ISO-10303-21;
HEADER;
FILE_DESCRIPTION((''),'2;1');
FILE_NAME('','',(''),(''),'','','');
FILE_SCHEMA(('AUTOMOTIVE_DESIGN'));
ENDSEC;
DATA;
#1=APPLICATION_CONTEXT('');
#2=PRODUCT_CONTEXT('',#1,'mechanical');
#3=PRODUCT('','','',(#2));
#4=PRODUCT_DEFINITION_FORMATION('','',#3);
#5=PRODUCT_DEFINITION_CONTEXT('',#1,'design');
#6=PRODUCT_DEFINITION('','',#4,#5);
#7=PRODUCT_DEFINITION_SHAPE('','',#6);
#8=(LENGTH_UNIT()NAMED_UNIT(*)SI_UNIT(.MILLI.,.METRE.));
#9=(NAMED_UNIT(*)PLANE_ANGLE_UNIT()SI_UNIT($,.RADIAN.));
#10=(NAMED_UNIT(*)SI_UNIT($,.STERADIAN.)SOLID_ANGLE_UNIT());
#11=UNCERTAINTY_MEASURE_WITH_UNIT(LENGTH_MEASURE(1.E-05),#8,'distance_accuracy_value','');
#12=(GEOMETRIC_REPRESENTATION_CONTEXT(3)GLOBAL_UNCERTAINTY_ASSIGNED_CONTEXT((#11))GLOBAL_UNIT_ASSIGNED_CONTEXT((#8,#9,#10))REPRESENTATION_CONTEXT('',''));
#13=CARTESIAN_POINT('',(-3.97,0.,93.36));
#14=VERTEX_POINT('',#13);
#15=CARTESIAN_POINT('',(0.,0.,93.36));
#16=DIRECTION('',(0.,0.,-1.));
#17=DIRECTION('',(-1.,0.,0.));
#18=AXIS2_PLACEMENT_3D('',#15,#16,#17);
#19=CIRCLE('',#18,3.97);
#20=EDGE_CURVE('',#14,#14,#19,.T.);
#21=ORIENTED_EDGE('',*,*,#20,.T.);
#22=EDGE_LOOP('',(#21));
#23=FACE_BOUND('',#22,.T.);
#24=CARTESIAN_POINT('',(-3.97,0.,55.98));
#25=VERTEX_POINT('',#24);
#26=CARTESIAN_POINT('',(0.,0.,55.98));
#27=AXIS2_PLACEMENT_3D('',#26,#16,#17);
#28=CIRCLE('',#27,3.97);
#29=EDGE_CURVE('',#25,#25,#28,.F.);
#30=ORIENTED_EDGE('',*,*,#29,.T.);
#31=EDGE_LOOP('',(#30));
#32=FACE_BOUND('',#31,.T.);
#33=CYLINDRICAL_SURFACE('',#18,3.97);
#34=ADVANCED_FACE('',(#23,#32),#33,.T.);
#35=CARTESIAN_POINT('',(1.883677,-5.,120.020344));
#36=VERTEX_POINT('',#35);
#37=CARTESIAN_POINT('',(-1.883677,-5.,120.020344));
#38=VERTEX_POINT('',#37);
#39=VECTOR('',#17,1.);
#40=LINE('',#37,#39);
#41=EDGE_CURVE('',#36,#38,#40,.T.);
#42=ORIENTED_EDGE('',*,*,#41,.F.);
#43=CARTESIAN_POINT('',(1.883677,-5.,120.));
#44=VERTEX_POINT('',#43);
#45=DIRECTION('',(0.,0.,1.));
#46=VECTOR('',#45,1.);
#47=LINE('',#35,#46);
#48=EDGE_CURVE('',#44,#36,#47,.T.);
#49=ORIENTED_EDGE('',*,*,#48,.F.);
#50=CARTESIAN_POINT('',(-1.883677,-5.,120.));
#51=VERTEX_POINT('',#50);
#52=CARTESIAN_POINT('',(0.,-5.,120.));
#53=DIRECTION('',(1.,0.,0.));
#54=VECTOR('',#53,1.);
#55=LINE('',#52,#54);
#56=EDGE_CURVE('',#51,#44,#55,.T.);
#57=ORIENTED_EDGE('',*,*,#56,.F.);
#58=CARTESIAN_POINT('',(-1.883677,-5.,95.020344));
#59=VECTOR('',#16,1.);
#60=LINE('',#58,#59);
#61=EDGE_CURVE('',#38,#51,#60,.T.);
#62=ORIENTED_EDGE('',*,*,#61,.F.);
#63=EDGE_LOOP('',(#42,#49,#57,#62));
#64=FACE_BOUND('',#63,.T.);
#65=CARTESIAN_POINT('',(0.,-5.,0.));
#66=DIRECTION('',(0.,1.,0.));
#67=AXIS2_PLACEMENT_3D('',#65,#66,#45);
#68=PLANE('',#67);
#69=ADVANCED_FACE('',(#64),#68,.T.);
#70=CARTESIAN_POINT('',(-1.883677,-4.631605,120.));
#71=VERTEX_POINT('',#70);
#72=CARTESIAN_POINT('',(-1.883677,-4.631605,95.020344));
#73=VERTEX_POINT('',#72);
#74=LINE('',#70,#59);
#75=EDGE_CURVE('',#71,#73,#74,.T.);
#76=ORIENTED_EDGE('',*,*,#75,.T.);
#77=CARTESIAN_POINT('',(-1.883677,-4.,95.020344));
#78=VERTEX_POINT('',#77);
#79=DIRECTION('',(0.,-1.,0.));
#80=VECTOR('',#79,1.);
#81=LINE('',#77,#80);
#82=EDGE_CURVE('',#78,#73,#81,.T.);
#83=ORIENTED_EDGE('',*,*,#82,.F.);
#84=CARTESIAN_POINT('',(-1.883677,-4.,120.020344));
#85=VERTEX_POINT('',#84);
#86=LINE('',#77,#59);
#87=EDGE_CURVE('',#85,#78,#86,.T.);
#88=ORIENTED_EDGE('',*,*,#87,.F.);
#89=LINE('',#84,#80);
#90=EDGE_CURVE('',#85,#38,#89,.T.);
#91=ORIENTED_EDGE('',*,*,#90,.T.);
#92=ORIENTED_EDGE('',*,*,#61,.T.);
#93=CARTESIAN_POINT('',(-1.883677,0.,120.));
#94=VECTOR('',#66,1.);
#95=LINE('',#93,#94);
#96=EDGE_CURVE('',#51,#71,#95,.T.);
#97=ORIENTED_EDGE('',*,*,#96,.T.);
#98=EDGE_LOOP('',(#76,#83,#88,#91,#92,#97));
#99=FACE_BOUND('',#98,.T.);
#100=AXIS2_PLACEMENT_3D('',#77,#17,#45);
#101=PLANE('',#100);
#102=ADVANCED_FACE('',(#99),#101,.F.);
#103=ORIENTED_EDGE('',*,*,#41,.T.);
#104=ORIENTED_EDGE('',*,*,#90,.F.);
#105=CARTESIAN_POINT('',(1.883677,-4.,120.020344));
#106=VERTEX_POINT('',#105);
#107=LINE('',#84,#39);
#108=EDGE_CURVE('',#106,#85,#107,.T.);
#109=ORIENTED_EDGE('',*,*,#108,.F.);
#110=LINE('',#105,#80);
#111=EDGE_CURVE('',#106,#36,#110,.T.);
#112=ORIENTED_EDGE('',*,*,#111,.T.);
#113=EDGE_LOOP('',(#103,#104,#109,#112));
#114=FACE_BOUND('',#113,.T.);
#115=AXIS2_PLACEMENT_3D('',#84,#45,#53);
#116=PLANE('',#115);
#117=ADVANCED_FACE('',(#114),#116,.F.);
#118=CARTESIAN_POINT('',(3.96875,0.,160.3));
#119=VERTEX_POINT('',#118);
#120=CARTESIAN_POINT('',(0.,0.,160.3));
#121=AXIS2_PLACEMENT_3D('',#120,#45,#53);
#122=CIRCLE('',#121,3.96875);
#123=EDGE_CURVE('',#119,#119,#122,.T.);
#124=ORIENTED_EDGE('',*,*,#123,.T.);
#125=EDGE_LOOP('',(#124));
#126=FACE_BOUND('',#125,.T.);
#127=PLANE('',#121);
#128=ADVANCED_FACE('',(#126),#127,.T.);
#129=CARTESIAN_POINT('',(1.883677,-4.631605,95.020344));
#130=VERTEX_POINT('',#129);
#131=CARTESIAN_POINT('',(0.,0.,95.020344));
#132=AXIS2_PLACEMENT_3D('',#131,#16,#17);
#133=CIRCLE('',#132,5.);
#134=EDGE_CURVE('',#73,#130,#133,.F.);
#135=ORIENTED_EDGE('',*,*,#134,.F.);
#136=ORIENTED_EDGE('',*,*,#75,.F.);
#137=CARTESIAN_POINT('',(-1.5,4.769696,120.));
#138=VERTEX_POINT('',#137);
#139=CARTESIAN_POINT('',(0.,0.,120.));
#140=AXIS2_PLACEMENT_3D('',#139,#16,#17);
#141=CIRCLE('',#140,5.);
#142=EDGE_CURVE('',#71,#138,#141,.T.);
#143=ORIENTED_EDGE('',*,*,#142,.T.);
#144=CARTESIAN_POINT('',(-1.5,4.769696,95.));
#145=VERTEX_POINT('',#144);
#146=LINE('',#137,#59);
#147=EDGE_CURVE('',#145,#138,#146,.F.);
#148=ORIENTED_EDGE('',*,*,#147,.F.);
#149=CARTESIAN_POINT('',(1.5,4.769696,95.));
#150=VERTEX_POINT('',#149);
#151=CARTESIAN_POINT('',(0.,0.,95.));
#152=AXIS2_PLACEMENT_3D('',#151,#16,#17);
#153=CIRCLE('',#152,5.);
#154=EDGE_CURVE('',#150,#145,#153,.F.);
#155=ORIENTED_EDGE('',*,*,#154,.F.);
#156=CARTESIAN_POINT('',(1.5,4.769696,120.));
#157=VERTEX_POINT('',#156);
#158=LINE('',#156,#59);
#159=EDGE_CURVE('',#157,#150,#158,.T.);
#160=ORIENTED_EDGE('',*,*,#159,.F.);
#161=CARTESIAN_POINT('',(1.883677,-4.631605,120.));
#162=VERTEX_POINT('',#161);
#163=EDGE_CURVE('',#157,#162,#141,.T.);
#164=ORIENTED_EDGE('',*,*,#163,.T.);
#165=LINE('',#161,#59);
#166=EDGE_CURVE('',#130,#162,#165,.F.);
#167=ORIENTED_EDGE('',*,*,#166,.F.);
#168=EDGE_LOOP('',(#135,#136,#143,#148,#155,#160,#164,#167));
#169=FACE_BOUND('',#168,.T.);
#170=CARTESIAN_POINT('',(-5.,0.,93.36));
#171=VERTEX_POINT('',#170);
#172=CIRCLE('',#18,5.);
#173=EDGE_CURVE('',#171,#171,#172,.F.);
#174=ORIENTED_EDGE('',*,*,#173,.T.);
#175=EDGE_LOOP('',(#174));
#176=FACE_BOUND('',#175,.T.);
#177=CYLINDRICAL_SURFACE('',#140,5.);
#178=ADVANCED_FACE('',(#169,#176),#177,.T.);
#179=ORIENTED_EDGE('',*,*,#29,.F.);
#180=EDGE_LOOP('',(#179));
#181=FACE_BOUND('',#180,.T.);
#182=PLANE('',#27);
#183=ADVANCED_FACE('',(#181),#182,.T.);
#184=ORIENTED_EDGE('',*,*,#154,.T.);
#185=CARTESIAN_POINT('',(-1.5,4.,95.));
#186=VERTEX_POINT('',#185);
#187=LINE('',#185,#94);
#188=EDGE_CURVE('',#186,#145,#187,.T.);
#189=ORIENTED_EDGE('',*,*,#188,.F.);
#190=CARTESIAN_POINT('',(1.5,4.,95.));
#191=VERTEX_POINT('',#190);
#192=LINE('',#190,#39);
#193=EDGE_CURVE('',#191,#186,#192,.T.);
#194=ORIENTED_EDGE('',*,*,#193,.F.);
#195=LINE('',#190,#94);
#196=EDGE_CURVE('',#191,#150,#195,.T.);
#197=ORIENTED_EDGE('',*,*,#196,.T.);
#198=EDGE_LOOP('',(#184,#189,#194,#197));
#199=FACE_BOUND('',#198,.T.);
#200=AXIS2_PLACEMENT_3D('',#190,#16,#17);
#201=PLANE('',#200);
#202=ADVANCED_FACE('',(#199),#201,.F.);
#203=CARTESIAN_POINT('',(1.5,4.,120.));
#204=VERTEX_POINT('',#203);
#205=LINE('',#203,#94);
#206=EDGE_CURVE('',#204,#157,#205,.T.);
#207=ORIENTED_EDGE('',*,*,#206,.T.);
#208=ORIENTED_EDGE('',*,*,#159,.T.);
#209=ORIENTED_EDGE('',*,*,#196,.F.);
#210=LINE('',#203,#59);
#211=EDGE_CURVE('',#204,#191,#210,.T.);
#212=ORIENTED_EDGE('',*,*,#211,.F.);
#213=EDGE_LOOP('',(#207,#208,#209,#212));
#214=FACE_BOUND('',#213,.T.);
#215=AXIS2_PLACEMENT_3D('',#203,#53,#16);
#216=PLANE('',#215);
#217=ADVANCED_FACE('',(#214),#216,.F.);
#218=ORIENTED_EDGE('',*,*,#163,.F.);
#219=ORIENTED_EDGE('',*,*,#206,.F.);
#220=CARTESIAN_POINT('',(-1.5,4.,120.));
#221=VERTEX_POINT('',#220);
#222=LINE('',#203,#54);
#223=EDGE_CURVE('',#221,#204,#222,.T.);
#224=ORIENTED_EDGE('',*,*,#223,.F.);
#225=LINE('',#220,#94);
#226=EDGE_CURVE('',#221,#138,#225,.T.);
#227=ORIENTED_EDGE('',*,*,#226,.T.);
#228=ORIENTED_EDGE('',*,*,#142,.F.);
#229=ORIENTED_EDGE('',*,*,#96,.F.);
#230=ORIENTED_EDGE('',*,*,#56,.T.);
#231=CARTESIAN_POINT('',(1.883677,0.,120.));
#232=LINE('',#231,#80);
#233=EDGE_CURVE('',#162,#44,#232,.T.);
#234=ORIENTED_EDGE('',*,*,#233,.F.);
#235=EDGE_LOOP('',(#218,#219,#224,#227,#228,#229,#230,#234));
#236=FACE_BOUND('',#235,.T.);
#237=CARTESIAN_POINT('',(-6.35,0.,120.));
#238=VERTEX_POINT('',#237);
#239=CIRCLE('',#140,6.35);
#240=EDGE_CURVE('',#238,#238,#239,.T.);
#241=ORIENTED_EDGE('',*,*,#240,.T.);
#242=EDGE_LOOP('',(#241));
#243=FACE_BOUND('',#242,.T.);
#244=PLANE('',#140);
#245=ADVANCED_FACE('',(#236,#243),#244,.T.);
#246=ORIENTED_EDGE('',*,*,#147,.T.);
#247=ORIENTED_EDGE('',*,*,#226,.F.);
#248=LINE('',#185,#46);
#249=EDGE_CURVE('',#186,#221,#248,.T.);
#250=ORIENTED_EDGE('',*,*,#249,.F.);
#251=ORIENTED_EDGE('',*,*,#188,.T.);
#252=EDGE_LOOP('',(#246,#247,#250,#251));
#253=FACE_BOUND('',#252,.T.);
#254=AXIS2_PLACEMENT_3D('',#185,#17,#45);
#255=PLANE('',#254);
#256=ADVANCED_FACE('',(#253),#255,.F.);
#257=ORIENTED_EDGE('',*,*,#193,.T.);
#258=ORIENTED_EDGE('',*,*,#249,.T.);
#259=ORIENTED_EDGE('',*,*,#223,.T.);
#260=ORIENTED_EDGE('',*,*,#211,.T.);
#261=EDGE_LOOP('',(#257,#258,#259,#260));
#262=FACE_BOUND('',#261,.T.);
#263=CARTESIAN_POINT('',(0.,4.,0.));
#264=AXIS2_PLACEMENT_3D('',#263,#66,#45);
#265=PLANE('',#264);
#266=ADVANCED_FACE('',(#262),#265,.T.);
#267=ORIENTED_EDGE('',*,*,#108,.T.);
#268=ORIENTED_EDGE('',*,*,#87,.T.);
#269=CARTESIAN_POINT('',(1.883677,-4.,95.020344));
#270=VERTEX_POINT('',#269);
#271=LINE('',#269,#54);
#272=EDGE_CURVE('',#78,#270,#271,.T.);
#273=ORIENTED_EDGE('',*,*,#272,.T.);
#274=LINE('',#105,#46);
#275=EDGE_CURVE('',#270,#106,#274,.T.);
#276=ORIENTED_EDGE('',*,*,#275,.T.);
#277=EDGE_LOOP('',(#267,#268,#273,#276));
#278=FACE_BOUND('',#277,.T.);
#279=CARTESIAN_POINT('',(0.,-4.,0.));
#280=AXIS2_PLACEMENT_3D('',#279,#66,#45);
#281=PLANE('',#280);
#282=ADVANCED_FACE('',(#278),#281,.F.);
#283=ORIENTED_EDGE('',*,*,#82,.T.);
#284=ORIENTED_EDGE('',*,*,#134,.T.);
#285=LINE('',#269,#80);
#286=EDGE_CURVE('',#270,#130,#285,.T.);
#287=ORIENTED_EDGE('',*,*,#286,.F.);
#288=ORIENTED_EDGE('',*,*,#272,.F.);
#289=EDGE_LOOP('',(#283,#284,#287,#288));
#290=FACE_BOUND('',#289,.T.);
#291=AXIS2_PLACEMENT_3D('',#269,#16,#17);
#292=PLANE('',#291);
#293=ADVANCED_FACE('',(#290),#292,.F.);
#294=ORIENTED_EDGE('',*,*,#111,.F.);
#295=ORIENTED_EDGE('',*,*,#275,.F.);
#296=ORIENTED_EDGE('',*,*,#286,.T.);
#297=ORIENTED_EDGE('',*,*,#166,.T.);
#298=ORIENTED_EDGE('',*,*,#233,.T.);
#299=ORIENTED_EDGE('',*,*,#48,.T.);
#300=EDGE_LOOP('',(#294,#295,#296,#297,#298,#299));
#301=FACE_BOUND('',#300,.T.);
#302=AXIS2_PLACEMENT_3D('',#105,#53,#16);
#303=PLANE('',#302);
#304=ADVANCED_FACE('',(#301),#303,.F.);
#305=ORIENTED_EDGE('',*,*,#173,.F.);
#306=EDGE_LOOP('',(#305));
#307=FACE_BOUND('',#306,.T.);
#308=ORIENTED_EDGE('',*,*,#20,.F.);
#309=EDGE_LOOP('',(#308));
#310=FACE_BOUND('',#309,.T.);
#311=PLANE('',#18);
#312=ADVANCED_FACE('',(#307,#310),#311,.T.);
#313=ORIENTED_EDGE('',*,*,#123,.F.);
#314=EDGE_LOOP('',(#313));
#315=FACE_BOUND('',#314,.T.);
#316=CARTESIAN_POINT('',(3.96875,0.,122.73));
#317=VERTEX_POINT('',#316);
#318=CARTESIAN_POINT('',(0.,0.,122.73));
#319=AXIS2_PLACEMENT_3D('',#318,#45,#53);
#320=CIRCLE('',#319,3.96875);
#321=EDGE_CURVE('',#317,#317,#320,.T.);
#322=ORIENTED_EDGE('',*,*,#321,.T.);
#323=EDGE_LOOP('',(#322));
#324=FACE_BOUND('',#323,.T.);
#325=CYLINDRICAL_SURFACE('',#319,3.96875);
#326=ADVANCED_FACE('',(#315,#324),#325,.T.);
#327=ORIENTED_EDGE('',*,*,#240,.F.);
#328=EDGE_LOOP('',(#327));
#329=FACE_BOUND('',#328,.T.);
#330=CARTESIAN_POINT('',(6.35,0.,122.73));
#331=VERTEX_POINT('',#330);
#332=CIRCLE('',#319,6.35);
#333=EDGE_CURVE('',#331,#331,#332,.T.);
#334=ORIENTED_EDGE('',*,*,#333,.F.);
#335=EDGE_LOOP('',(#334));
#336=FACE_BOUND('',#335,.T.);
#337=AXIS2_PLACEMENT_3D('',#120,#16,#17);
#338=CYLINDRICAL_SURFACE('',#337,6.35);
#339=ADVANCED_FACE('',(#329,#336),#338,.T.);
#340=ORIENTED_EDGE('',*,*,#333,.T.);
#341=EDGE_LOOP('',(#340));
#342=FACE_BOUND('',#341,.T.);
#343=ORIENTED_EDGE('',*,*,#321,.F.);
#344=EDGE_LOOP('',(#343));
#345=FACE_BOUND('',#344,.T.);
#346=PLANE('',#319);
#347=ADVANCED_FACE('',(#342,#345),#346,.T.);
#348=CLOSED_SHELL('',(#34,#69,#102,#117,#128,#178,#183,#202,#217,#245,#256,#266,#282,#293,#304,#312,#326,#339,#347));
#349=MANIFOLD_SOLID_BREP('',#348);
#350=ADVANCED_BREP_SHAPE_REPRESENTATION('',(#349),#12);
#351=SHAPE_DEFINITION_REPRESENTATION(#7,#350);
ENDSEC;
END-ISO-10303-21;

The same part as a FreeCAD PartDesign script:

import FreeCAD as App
import Part
import Sketcher

V = App.Vector
Q = App.Units.Quantity


def add_polygon(sketch, points):
    """Adds a closed chain of lines whose ends are joined by coincident constraints."""
    first, n = sketch.GeometryCount, len(points)
    for a, b in zip(points, points[1:] + points[:1]):
        sketch.addGeometry(Part.LineSegment(App.Vector(*a, 0), App.Vector(*b, 0)), False)
    for i in range(n):
        sketch.addConstraint(Sketcher.Constraint("Coincident", first + i, 2, first + (i + 1) % n, 1))

doc = App.newDocument("Part")
body = doc.addObject("PartDesign::Body", "Body")

sketch1 = body.newObject("Sketcher::SketchObject", "Sketch")
sketch1.AttachmentSupport = (doc.getObject("XY_Plane"), [""])
sketch1.MapMode = "FlatFace"
sketch1.addGeometry(Part.Circle(V(0, 0, 0), V(0, 0, 1), 6), False)
sketch1.addConstraint([
    Sketcher.Constraint("Coincident", 0, 3, -1, 1),
    Sketcher.Constraint("Diameter", 0, Q("12.7 mm")),
])
pad1 = body.newObject("PartDesign::Pad", "Pad")
pad1.Profile = sketch1
pad1.Length = 160.3

sketch2 = body.newObject("Sketcher::SketchObject", "Sketch001")
sketch2.AttachmentSupport = (doc.getObject("XY_Plane"), [""])
sketch2.MapMode = "FlatFace"
add_polygon(sketch2, [(23, 23), (23, -23), (-23, -23), (-23, 23)])
sketch2.addGeometry(Part.Circle(V(0, 0, 0), V(0, 0, 1), 5), False)
sketch2.addConstraint([
    Sketcher.Constraint("Vertical", 0),
    Sketcher.Constraint("Horizontal", 1),
    Sketcher.Constraint("Vertical", 2),
    Sketcher.Constraint("Horizontal", 3),
    Sketcher.Constraint("Coincident", 4, 3, -1, 1),
    Sketcher.Constraint("Symmetric", 0, 2, 2, 2, -1, 1),
    Sketcher.Constraint("Equal", 3, 0),
    Sketcher.Constraint("Diameter", 4, Q("10 mm")),
    Sketcher.Constraint("DistanceX", 1, 2, 1, 1, Q("46.96 mm")),
])
pocket1 = body.newObject("PartDesign::Pocket", "Pocket")
pocket1.Profile = sketch2
pocket1.Length = 120
pocket1.Reversed = True

sketch3 = body.newObject("Sketcher::SketchObject", "Sketch002")
sketch3.AttachmentSupport = (doc.getObject("XY_Plane"), [""])
sketch3.MapMode = "FlatFace"
sketch3.AttachmentOffset = App.Placement(V(0, 0, 160.3), App.Rotation())
add_polygon(sketch3, [(-23.5, 23.5), (-23.5, -23.5), (23.5, -23.5), (23.5, 23.5)])
sketch3.addGeometry(Part.Circle(V(0, 0, 0), V(0, 0, 1), 4), False)
sketch3.addConstraint([
    Sketcher.Constraint("Vertical", 0),
    Sketcher.Constraint("Horizontal", 1),
    Sketcher.Constraint("Vertical", 2),
    Sketcher.Constraint("Horizontal", 3),
    Sketcher.Constraint("Coincident", 4, 3, -1, 1),
    Sketcher.Constraint("Symmetric", 0, 2, 2, 2, -1, 1),
    Sketcher.Constraint("Equal", 3, 0),
    Sketcher.Constraint("Diameter", 4, Q("7.9375 mm")),
    Sketcher.Constraint("DistanceX", 1, 1, 1, 2, Q("46.96 mm")),
])
pocket2 = body.newObject("PartDesign::Pocket", "Pocket001")
pocket2.Profile = sketch3
pocket2.Length = 37.57

sketch4 = body.newObject("Sketcher::SketchObject", "Sketch003")
sketch4.AttachmentSupport = (doc.getObject("XY_Plane"), [""])
sketch4.MapMode = "FlatFace"
add_polygon(sketch4, [(23.5, 23.5), (23.5, -23.5), (-23.5, -23.5), (-23.5, 23.5)])
sketch4.addGeometry(Part.Circle(V(0, 0, 0), V(0, 0, 1), 4), False)
sketch4.addConstraint([
    Sketcher.Constraint("Vertical", 0),
    Sketcher.Constraint("Horizontal", 1),
    Sketcher.Constraint("Vertical", 2),
    Sketcher.Constraint("Horizontal", 3),
    Sketcher.Constraint("Coincident", 4, 3, -1, 1),
    Sketcher.Constraint("Symmetric", 0, 2, 2, 2, -1, 1),
    Sketcher.Constraint("Equal", 3, 0),
    Sketcher.Constraint("Diameter", 4, Q("7.94 mm")),
    Sketcher.Constraint("DistanceX", 1, 2, 1, 1, Q("46.96 mm")),
])
pocket3 = body.newObject("PartDesign::Pocket", "Pocket002")
pocket3.Profile = sketch4
pocket3.Length = 93.36
pocket3.Reversed = True

sketch5 = body.newObject("Sketcher::SketchObject", "Sketch004")
sketch5.AttachmentSupport = (doc.getObject("XZ_Plane"), [""])
sketch5.MapMode = "FlatFace"
sketch5.AttachmentOffset = App.Placement(V(0, 0, -5), App.Rotation())
add_polygon(sketch5, [(-1.5, 95), (-1.5, 120), (1.5, 120), (1.5, 95)])
sketch5.addConstraint([
    Sketcher.Constraint("Vertical", 0),
    Sketcher.Constraint("Horizontal", 1),
    Sketcher.Constraint("Vertical", 2),
    Sketcher.Constraint("Horizontal", 3),
    Sketcher.Constraint("DistanceX", 1, 1, 1, 2, Q("3 mm")),
    Sketcher.Constraint("DistanceY", 0, 1, 0, 2, Q("25 mm")),
    Sketcher.Constraint("DistanceY", -1, 1, 0, 2, Q("120 mm")),
    Sketcher.Constraint("DistanceX", 0, 2, -1, 1, Q("1.5 mm")),
])
pocket4 = body.newObject("PartDesign::Pocket", "Pocket003")
pocket4.Profile = sketch5
pocket4.Length = 1
pocket4.Reversed = True

sketch6 = body.newObject("Sketcher::SketchObject", "Sketch005")
sketch6.AttachmentSupport = (doc.getObject("XZ_Plane"), [""])
sketch6.MapMode = "FlatFace"
sketch6.AttachmentOffset = App.Placement(V(0, 0, 5), App.Rotation())
add_polygon(sketch6, [(1.9, 95), (1.9, 120), (-1.9, 120), (-1.9, 95)])
sketch6.addConstraint([
    Sketcher.Constraint("Vertical", 0),
    Sketcher.Constraint("Horizontal", 1),
    Sketcher.Constraint("Vertical", 2),
    Sketcher.Constraint("Horizontal", 3),
    Sketcher.Constraint("DistanceY", 0, 1, 0, 2, Q("25 mm")),
    Sketcher.Constraint("DistanceX", 1, 2, 1, 1, Q("3.767354 mm")),
    Sketcher.Constraint("DistanceX", -1, 1, 0, 2, Q("1.883677 mm")),
    Sketcher.Constraint("DistanceY", -1, 1, 0, 2, Q("120.020344 mm")),
])
pocket5 = body.newObject("PartDesign::Pocket", "Pocket004")
pocket5.Profile = sketch6
pocket5.Length = 1

sketch7 = body.newObject("Sketcher::SketchObject", "Sketch006")
sketch7.AttachmentSupport = (doc.getObject("XY_Plane"), [""])
sketch7.MapMode = "FlatFace"
sketch7.addGeometry(Part.Circle(V(0, 0, 0), V(0, 0, 1), 16), False)
sketch7.addConstraint([
    Sketcher.Constraint("Coincident", 0, 3, -1, 1),
    Sketcher.Constraint("Diameter", 0, Q("31.82941 mm")),
])
pocket6 = body.newObject("PartDesign::Pocket", "Pocket005")
pocket6.Profile = sketch7
pocket6.Length = 55.98
pocket6.Reversed = True

doc.recompute()
